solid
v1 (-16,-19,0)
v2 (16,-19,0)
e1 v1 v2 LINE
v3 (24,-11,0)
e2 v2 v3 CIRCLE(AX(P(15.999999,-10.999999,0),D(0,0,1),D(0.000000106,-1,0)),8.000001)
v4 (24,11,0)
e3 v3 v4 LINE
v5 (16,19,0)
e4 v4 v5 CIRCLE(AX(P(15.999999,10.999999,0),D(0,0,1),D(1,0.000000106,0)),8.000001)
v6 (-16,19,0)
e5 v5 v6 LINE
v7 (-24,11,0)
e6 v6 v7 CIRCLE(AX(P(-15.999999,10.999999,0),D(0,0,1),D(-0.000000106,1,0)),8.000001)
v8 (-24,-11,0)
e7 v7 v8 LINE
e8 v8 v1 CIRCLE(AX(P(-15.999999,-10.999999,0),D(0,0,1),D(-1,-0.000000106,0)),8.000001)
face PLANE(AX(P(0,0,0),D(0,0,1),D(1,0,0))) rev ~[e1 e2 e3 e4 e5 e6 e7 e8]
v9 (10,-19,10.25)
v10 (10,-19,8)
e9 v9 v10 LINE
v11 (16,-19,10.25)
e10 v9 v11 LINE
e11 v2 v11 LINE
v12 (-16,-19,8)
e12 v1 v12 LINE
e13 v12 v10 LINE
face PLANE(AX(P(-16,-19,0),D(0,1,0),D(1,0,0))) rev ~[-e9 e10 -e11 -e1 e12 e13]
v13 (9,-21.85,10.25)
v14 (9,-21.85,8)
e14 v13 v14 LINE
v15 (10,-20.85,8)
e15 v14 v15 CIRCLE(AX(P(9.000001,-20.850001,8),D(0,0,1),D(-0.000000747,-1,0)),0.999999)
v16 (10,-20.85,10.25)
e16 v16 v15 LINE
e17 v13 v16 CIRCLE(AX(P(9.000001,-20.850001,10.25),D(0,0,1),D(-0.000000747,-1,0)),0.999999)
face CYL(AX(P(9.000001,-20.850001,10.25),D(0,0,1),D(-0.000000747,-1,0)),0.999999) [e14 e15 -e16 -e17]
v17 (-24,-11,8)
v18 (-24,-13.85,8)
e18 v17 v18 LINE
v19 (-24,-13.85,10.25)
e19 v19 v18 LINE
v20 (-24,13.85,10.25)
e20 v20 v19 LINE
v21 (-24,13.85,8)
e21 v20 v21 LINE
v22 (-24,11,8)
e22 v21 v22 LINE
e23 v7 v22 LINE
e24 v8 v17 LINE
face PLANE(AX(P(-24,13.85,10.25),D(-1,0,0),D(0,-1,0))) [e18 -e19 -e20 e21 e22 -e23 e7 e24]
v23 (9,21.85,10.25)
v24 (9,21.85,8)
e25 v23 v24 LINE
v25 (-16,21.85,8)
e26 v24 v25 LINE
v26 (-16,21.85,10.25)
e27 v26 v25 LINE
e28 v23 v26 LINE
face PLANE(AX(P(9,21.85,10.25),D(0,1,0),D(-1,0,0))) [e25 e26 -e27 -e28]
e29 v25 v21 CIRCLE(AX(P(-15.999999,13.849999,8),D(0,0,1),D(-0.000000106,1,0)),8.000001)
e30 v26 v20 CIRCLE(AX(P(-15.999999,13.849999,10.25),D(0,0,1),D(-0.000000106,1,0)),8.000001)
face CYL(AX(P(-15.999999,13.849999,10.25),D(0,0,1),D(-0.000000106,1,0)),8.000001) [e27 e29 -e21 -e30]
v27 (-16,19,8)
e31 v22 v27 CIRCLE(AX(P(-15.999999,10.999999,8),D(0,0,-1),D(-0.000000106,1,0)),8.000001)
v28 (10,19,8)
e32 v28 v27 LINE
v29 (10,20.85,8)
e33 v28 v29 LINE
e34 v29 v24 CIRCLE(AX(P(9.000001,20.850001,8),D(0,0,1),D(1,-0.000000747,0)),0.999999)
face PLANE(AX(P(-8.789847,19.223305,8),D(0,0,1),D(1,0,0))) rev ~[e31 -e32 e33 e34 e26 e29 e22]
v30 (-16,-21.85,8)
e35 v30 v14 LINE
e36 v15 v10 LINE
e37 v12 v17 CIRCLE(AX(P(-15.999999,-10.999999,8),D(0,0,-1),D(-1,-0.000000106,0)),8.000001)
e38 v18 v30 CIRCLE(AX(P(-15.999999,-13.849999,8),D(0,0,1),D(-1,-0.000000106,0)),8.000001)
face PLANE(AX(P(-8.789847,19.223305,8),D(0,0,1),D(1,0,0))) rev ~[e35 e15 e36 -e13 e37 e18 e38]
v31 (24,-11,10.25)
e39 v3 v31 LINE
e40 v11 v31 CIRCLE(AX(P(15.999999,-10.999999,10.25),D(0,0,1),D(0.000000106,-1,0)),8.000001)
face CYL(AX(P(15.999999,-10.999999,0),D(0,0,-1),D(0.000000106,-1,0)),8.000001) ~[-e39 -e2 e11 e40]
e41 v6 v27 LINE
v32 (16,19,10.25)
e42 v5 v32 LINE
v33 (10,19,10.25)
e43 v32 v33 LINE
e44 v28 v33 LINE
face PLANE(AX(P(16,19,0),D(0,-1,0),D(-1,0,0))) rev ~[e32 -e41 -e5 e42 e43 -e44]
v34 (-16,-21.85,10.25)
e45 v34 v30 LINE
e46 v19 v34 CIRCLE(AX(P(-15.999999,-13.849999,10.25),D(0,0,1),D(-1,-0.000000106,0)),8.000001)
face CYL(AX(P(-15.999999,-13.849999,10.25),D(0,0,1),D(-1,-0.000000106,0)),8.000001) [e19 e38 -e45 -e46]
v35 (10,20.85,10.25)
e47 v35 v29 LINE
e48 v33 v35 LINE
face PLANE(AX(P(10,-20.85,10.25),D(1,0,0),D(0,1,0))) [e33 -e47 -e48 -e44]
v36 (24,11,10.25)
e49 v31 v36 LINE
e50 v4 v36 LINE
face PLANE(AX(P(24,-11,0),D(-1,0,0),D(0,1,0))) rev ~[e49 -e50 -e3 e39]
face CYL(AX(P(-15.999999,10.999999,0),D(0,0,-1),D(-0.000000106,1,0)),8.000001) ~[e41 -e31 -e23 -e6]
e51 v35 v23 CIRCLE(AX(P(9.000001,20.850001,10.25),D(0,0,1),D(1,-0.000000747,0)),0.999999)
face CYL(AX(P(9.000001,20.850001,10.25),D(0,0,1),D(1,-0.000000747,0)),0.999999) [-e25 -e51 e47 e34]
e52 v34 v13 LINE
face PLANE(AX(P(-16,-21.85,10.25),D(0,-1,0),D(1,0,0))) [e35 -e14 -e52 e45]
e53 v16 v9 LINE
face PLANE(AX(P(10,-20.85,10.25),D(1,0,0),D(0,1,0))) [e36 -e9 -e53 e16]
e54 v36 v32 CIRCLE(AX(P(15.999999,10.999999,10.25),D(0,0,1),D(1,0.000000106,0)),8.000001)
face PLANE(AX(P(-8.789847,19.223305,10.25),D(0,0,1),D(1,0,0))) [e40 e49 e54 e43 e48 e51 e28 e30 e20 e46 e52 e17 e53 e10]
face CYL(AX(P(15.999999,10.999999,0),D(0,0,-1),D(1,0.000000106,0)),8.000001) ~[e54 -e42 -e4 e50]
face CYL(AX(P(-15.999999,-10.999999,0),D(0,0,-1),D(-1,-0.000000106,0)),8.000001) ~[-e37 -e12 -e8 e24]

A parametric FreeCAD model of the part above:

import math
import FreeCAD as App
import Part
import Sketcher

V = App.Vector
Q = App.Units.Quantity

doc = App.newDocument("Part")
body = doc.addObject("PartDesign::Body", "Body")

# Sketch on XY plane
sketch1 = body.newObject("Sketcher::SketchObject", "Sketch")
sketch1.AttachmentSupport = (doc.getObject("XY_Plane"), [""])
sketch1.MapMode = "FlatFace"
sketch1.addGeometry([
    Part.LineSegment(V(-16, -19, 0), V(16, -19, 0)),  # 0
    Part.ArcOfCircle(Part.Circle(V(16, -11, 0), V(0, 0, 1), 8), math.radians(-90), math.radians(0)),  # 1
    Part.LineSegment(V(24, -11, 0), V(24, 11, 0)),  # 2
    Part.ArcOfCircle(Part.Circle(V(16, 11, 0), V(0, 0, 1), 8), math.radians(0), math.radians(90)),  # 3
    Part.LineSegment(V(16, 19, 0), V(-16, 19, 0)),  # 4
    Part.ArcOfCircle(Part.Circle(V(-16, 11, 0), V(0, 0, 1), 8), math.radians(90), math.radians(180)),  # 5
    Part.LineSegment(V(-24, 11, 0), V(-24, -11, 0)),  # 6
    Part.ArcOfCircle(Part.Circle(V(-16, -11, 0), V(0, 0, 1), 8), math.radians(-180), math.radians(-90)),  # 7
], False)
sketch1.addConstraint([
    Sketcher.Constraint("Tangent", 0, 2, 1, 1),
    Sketcher.Constraint("Tangent", 1, 2, 2, 1),
    Sketcher.Constraint("Tangent", 2, 2, 3, 1),
    Sketcher.Constraint("Tangent", 3, 2, 4, 1),
    Sketcher.Constraint("Tangent", 4, 2, 5, 1),
    Sketcher.Constraint("Tangent", 5, 2, 6, 1),
    Sketcher.Constraint("Tangent", 6, 2, 7, 1),
    Sketcher.Constraint("Tangent", 7, 2, 0, 1),
    Sketcher.Constraint("Horizontal", 0),
    Sketcher.Constraint("Vertical", 2),
    Sketcher.Constraint("Horizontal", 4),
    Sketcher.Constraint("Vertical", 6),
    Sketcher.Constraint("Equal", 1, 3),
    Sketcher.Constraint("Equal", 3, 5),
    Sketcher.Constraint("Equal", 5, 7),
    Sketcher.Constraint("Symmetric", 1, 3, 5, 3, -1, 1),
    Sketcher.Constraint("Radius", 1, Q("8.000001 mm")),
    Sketcher.Constraint("DistanceX", 0, 1, 0, 2, Q("32 mm")),
    Sketcher.Constraint("DistanceY", 2, 1, 2, 2, Q("22 mm")),
])
pad1 = body.newObject("PartDesign::Pad", "Pad")
pad1.Profile = sketch1
pad1.Length = 10.25

# Sketch on XY plane
sketch2 = body.newObject("Sketcher::SketchObject", "Sketch001")
sketch2.AttachmentSupport = (doc.getObject("XY_Plane"), [""])
sketch2.MapMode = "FlatFace"
sketch2.AttachmentOffset = App.Placement(V(0, 0, 10.25), App.Rotation())
sketch2.addGeometry([
    Part.LineSegment(V(9, 21.9, 0), V(-16, 21.9, 0)),  # 0
    Part.ArcOfCircle(Part.Circle(V(-16, 13.8, 0), V(0, 0, 1), 8), math.radians(90), math.radians(180)),  # 1
    Part.LineSegment(V(-24, 13.8, 0), V(-24, -13.8, 0)),  # 2
    Part.ArcOfCircle(Part.Circle(V(-16, -13.8, 0), V(0, 0, 1), 8), math.radians(-180), math.radians(-90)),  # 3
    Part.LineSegment(V(-16, -21.9, 0), V(9, -21.9, 0)),  # 4
    Part.ArcOfCircle(Part.Circle(V(9, -20.9, 0), V(0, 0, 1), 1), math.radians(-90), math.radians(0)),  # 5
    Part.LineSegment(V(10, -20.9, 0), V(10, 20.9, 0)),  # 6
    Part.ArcOfCircle(Part.Circle(V(9, 20.9, 0), V(0, 0, 1), 1), math.radians(0), math.radians(90)),  # 7
], False)
sketch2.addConstraint([
    Sketcher.Constraint("Tangent", 0, 2, 1, 1),
    Sketcher.Constraint("Tangent", 1, 2, 2, 1),
    Sketcher.Constraint("Tangent", 2, 2, 3, 1),
    Sketcher.Constraint("Tangent", 3, 2, 4, 1),
    Sketcher.Constraint("Tangent", 4, 2, 5, 1),
    Sketcher.Constraint("Tangent", 5, 2, 6, 1),
    Sketcher.Constraint("Tangent", 6, 2, 7, 1),
    Sketcher.Constraint("Tangent", 7, 2, 0, 1),
    Sketcher.Constraint("Horizontal", 0),
    Sketcher.Constraint("Vertical", 2),
    Sketcher.Constraint("Horizontal", 4),
    Sketcher.Constraint("Vertical", 6),
    Sketcher.Constraint("Equal", 1, 3),
    Sketcher.Constraint("Equal", 5, 7),
    Sketcher.Constraint("Radius", 1, Q("8.000001 mm")),
    Sketcher.Constraint("Radius", 5, Q("0.999999 mm")),
    Sketcher.Constraint("DistanceX", 0, 2, 0, 1, Q("25 mm")),
    Sketcher.Constraint("DistanceY", 2, 2, 2, 1, Q("27.7 mm")),
    Sketcher.Constraint("DistanceX", 1, 3, -1, 1, Q("15.999999 mm")),
    Sketcher.Constraint("DistanceY", -1, 1, 1, 3, Q("13.849999 mm")),
])
pad2 = body.newObject("PartDesign::Pad", "Pad001")
pad2.Profile = sketch2
pad2.Length = 2.25
pad2.Reversed = True

doc.recompute()
